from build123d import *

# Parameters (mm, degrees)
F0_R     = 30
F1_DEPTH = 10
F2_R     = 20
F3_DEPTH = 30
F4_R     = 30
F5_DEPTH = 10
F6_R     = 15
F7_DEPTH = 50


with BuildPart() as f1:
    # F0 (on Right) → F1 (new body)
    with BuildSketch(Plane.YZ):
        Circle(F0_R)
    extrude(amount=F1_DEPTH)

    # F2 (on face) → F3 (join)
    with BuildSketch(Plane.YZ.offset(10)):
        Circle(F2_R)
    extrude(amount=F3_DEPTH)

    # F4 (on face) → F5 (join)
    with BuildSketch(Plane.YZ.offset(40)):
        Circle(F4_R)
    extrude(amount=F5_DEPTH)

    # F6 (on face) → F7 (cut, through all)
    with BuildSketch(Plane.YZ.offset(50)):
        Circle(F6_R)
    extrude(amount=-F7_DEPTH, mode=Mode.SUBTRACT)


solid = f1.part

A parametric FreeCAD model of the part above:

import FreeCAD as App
import Part
import Sketcher
from FreeCAD import Vector

doc = App.newDocument("Part")
body = doc.addObject("PartDesign::Body", "Body")

# Sketch on YZ plane
sketch1 = doc.addObject("Sketcher::SketchObject", "Sketch")
body.addObject(sketch1)
sketch1.AttachmentSupport = (doc.YZ_Plane, [""])
sketch1.MapMode = "FlatFace"
sketch1.addGeometry(Part.Circle(Vector(0, 0, 0), Vector(0, 0, 1), 30), False)
sketch1.addConstraint(Sketcher.Constraint("Coincident", 0, 3, -1, 1))
sketch1.addConstraint(Sketcher.Constraint("Diameter", 0, 60.0))
pad1 = doc.addObject("PartDesign::Pad", "Pad")
body.addObject(pad1)
pad1.Profile = sketch1
pad1.Length = 10

# Sketch on YZ plane
sketch2 = doc.addObject("Sketcher::SketchObject", "Sketch001")
body.addObject(sketch2)
sketch2.AttachmentSupport = (doc.YZ_Plane, [""])
sketch2.MapMode = "FlatFace"
sketch2.AttachmentOffset = App.Placement(Vector(0, 0, 10), App.Rotation())
sketch2.addGeometry(Part.Circle(Vector(0, 0, 0), Vector(0, 0, 1), 20), False)
sketch2.addConstraint(Sketcher.Constraint("Coincident", 0, 3, -1, 1))
sketch2.addConstraint(Sketcher.Constraint("Diameter", 0, 40.0))
pad2 = doc.addObject("PartDesign::Pad", "Pad001")
body.addObject(pad2)
pad2.Profile = sketch2
pad2.Length = 30

# Sketch on YZ plane
sketch3 = doc.addObject("Sketcher::SketchObject", "Sketch002")
body.addObject(sketch3)
sketch3.AttachmentSupport = (doc.YZ_Plane, [""])
sketch3.MapMode = "FlatFace"
sketch3.AttachmentOffset = App.Placement(Vector(0, 0, 40), App.Rotation())
sketch3.addGeometry(Part.Circle(Vector(0, 0, 0), Vector(0, 0, 1), 30), False)
sketch3.addConstraint(Sketcher.Constraint("Coincident", 0, 3, -1, 1))
sketch3.addConstraint(Sketcher.Constraint("Diameter", 0, 60.0))
pad3 = doc.addObject("PartDesign::Pad", "Pad002")
body.addObject(pad3)
pad3.Profile = sketch3
pad3.Length = 10

# Sketch on YZ plane
sketch4 = doc.addObject("Sketcher::SketchObject", "Sketch003")
body.addObject(sketch4)
sketch4.AttachmentSupport = (doc.YZ_Plane, [""])
sketch4.MapMode = "FlatFace"
sketch4.AttachmentOffset = App.Placement(Vector(0, 0, 50), App.Rotation())
sketch4.addGeometry(Part.Circle(Vector(0, 0, 0), Vector(0, 0, 1), 15), False)
sketch4.addConstraint(Sketcher.Constraint("Coincident", 0, 3, -1, 1))
sketch4.addConstraint(Sketcher.Constraint("Diameter", 0, 30.0))
pocket1 = doc.addObject("PartDesign::Pocket", "Pocket")
body.addObject(pocket1)
pocket1.Profile = sketch4
pocket1.Type = "ThroughAll"

doc.recompute()
